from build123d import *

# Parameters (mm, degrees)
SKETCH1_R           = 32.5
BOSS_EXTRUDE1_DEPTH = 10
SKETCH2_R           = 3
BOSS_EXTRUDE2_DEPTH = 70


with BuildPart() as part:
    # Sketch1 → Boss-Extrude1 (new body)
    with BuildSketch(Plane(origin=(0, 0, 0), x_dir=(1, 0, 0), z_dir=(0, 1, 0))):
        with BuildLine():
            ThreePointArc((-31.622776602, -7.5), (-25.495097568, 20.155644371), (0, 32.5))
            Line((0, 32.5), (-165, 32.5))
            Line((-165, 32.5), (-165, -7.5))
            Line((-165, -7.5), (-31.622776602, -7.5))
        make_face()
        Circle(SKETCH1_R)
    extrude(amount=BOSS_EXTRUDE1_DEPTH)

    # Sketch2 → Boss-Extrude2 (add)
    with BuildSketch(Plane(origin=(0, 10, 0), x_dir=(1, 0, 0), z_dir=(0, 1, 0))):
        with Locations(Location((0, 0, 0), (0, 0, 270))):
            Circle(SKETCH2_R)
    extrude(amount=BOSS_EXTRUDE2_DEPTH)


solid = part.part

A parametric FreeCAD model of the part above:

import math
import FreeCAD as App
import Part
import Sketcher
Q = App.Units.Quantity

doc = App.newDocument("Part")
params = doc.addObject("Spreadsheet::Sheet", "Params")
for row, (alias, value) in enumerate([
    ("sketch1_radius", "32.5 mm"),
    ("sketch1_width", "165 mm"),
    ("sketch1_height", "40 mm"),
    ("pad1_length", "10 mm"),
    ("sketch2_diameter", "6 mm"),
    ("pad2_length", "70 mm"),
], start=1):
    params.set(f"A{row}", alias)
    params.set(f"B{row}", "=" + value)
    params.setAlias(f"B{row}", alias)

body = doc.addObject("PartDesign::Body", "Body")

# Sketch on XZ plane
sketch1 = body.newObject("Sketcher::SketchObject", "Sketch")
sketch1.AttachmentSupport = (doc.getObject("XZ_Plane"), [""])
sketch1.MapMode = "FlatFace"
sketch1.addGeometry([
    Part.LineSegment(App.Vector(0, -32, 0), App.Vector(-165, -32, 0)),
    Part.LineSegment(App.Vector(-165, -32, 0), App.Vector(-165, 8, 0)),
    Part.LineSegment(App.Vector(-165, 8, 0), App.Vector(-32, 8, 0)),
    Part.ArcOfCircle(Part.Circle(App.Vector(0, 0, 0), App.Vector(0, 0, 1), 32), math.radians(-90), math.radians(167)),
], False)
sketch1.addConstraint([
    Sketcher.Constraint("Coincident", 0, 2, 1, 1),
    Sketcher.Constraint("Coincident", 1, 2, 2, 1),
    Sketcher.Constraint("Coincident", 2, 2, 3, 2),
    Sketcher.Constraint("Tangent", 3, 1, 0, 1),
    Sketcher.Constraint("Horizontal", 0),
    Sketcher.Constraint("Vertical", 1),
    Sketcher.Constraint("Horizontal", 2),
    Sketcher.Constraint("Coincident", 3, 3, -1, 1),
    Sketcher.Constraint("Radius", 3, Q("32.5 mm")),
    Sketcher.Constraint("DistanceX", 0, 2, 0, 1, Q("165 mm")),
    Sketcher.Constraint("DistanceY", 1, 1, 1, 2, Q("40 mm")),
])
sketch1.setExpression("Constraints[8]", "Params.sketch1_radius")
sketch1.setExpression("Constraints[9]", "Params.sketch1_width")
sketch1.setExpression("Constraints[10]", "Params.sketch1_height")
pad1 = body.newObject("PartDesign::Pad", "Pad")
pad1.Profile = sketch1
pad1.setExpression("Length", "Params.pad1_length")
pad1.Reversed = True

# Sketch on XZ plane
sketch2 = body.newObject("Sketcher::SketchObject", "Sketch001")
sketch2.AttachmentSupport = (doc.getObject("XZ_Plane"), [""])
sketch2.MapMode = "FlatFace"
sketch2.AttachmentOffset = App.Placement(App.Vector(0, 0, -10), App.Rotation())
sketch2.addGeometry(Part.Circle(App.Vector(0, 0, 0), App.Vector(0, 0, 1), 3), False)
sketch2.addConstraint([
    Sketcher.Constraint("Coincident", 0, 3, -1, 1),
    Sketcher.Constraint("Diameter", 0, Q("6 mm")),
])
sketch2.setExpression("Constraints[1]", "Params.sketch2_diameter")
pad2 = body.newObject("PartDesign::Pad", "Pad001")
pad2.Profile = sketch2
pad2.setExpression("Length", "Params.pad2_length")
pad2.Reversed = True

doc.recompute()
